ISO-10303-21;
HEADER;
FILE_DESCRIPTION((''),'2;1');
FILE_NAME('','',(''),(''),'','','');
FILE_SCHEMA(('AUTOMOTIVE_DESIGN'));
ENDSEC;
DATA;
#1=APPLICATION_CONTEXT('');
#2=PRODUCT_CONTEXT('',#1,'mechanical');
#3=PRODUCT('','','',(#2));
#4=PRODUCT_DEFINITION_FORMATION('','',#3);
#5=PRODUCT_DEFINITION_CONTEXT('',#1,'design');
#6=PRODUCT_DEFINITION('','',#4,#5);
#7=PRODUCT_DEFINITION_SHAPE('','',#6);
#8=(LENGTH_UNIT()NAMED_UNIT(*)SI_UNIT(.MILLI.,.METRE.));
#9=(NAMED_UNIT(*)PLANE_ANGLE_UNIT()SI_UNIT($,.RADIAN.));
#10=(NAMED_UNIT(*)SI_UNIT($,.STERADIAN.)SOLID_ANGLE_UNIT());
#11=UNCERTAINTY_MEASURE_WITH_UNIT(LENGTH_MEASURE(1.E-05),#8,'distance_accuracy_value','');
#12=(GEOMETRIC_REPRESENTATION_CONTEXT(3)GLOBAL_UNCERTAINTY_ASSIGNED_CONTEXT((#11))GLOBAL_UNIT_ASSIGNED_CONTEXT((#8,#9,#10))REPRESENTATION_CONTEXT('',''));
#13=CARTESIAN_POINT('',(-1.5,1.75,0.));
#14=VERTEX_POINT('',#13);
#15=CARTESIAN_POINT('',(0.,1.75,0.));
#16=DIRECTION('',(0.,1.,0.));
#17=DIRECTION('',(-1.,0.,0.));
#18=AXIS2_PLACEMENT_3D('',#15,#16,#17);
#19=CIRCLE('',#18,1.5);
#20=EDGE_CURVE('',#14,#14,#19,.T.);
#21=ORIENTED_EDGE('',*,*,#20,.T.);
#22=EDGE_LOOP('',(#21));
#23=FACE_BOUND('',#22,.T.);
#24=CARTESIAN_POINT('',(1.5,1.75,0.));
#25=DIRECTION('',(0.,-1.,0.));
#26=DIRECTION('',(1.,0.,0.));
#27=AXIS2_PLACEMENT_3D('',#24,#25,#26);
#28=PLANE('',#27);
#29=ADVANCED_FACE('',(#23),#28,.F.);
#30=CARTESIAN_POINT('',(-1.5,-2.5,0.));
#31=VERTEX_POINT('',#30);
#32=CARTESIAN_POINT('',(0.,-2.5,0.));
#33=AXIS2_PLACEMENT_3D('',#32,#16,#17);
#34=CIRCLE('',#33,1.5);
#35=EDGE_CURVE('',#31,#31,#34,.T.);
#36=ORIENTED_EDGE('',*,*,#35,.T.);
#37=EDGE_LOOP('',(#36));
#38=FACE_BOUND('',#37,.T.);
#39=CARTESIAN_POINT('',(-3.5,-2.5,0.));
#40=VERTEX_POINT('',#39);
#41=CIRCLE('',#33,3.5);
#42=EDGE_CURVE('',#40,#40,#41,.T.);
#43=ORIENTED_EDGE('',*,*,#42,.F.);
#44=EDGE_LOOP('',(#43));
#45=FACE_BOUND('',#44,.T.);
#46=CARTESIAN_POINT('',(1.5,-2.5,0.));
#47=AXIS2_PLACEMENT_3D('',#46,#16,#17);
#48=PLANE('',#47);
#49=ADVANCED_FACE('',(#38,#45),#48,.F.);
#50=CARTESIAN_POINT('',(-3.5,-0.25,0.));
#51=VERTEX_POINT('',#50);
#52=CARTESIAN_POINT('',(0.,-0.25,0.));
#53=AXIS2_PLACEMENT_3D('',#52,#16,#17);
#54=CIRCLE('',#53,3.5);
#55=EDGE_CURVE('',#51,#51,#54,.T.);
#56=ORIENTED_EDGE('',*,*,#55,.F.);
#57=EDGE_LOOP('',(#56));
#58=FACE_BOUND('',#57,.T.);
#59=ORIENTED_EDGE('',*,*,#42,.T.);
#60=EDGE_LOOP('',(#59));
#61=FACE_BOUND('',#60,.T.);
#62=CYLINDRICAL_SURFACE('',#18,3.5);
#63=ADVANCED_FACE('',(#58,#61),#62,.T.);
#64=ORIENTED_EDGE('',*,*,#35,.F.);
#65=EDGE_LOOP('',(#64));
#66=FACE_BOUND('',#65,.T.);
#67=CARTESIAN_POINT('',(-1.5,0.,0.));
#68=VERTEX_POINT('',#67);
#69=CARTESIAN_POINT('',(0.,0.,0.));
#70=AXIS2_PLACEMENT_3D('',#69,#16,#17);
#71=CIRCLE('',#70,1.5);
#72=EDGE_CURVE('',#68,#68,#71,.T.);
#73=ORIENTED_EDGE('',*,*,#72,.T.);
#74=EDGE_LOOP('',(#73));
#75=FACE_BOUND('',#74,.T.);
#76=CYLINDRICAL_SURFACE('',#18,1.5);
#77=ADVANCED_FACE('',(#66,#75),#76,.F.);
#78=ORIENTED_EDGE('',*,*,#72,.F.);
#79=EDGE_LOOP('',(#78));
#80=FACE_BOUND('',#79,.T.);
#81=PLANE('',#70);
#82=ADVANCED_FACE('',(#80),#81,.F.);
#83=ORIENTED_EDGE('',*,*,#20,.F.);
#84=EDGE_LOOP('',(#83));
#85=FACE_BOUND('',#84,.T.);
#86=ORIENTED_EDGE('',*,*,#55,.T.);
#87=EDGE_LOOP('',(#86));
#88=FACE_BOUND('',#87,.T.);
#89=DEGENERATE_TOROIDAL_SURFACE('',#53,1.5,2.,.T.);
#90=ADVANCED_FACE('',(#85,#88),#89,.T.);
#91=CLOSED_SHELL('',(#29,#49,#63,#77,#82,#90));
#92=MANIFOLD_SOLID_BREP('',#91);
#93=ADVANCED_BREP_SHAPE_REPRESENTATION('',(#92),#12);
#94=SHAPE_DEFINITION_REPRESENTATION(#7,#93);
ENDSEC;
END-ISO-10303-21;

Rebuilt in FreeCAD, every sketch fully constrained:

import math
import FreeCAD as App
import Part
import Sketcher

V = App.Vector

doc = App.newDocument("Part")
body = doc.addObject("PartDesign::Body", "Body")

sketch1 = doc.addObject("Sketcher::SketchObject", "Sketch")
body.addObject(sketch1)
sketch1.AttachmentSupport = (doc.XY_Plane, [""])
sketch1.MapMode = "FlatFace"
sketch1.addGeometry(Part.LineSegment(V(0, 0, 0), V(1.5, 0, 0)), False)
sketch1.addGeometry(Part.LineSegment(V(1.5, 0, 0), V(1.5, -2.5, 0)), False)
sketch1.addGeometry(Part.LineSegment(V(1.5, -2.5, 0), V(3.5, -2.5, 0)), False)
sketch1.addGeometry(Part.LineSegment(V(3.5, -2.5, 0), V(3.5, -0.2, 0)), False)
sketch1.addGeometry(Part.ArcOfCircle(Part.Circle(V(1.5, -0.3, 0), V(0, 0, 1), 2), math.radians(0), math.radians(90)), False)
sketch1.addGeometry(Part.LineSegment(V(1.5, 1.8, 0), V(0, 1.8, 0)), False)
sketch1.addGeometry(Part.LineSegment(V(0, 1.8, 0), V(0, 0, 0)), False)
sketch1.addConstraint(Sketcher.Constraint("Coincident", 0, 2, 1, 1))
sketch1.addConstraint(Sketcher.Constraint("Coincident", 1, 2, 2, 1))
sketch1.addConstraint(Sketcher.Constraint("Coincident", 2, 2, 3, 1))
sketch1.addConstraint(Sketcher.Constraint("Tangent", 3, 2, 4, 1))
sketch1.addConstraint(Sketcher.Constraint("Tangent", 4, 2, 5, 1))
sketch1.addConstraint(Sketcher.Constraint("Coincident", 5, 2, 6, 1))
sketch1.addConstraint(Sketcher.Constraint("Coincident", 6, 2, 0, 1))
sketch1.addConstraint(Sketcher.Constraint("Horizontal", 0))
sketch1.addConstraint(Sketcher.Constraint("Vertical", 1))
sketch1.addConstraint(Sketcher.Constraint("Horizontal", 2))
sketch1.addConstraint(Sketcher.Constraint("Vertical", 3))
sketch1.addConstraint(Sketcher.Constraint("Horizontal", 5))
sketch1.addConstraint(Sketcher.Constraint("Vertical", 6))
sketch1.addConstraint(Sketcher.Constraint("Coincident", 6, 2, -1, 1))
sketch1.addConstraint(Sketcher.Constraint("Vertical", 4, 3, 0, 2))
sketch1.addConstraint(Sketcher.Constraint("Radius", 4, 2.0))
sketch1.addConstraint(Sketcher.Constraint("DistanceX", 0, 1, 0, 2, 1.5))
sketch1.addConstraint(Sketcher.Constraint("DistanceY", 1, 2, 1, 1, 2.5))
sketch1.addConstraint(Sketcher.Constraint("DistanceY", 3, 1, 3, 2, 2.25))
revolution = doc.addObject("PartDesign::Revolution", "Revolution")
body.addObject(revolution)
revolution.Profile = sketch1
revolution.ReferenceAxis = (sketch1, ["V_Axis"])
revolution.Angle = 360

doc.recompute()
